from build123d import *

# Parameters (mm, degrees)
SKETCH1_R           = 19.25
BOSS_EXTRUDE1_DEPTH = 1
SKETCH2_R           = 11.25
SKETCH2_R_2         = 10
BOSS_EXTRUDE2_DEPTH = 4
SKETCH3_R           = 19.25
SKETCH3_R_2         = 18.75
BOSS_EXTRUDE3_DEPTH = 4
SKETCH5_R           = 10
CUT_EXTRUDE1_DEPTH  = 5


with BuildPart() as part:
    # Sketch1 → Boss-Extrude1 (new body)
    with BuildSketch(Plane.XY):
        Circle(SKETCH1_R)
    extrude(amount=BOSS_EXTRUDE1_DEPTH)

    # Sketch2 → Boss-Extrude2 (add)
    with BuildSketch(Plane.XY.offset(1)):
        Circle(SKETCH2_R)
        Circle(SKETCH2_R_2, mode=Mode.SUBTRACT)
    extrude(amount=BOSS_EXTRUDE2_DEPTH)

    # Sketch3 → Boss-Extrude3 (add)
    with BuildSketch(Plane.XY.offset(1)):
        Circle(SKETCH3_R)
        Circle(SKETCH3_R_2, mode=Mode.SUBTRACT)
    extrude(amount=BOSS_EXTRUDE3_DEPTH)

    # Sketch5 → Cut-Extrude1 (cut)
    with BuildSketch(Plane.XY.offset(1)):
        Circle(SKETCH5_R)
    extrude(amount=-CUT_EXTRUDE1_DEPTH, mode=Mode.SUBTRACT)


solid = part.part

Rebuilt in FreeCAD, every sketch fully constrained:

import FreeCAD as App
import Part
import Sketcher

doc = App.newDocument("Part")
body = doc.addObject("PartDesign::Body", "Body")

sketch1 = body.newObject("Sketcher::SketchObject", "Sketch")
sketch1.AttachmentSupport = (doc.getObject("XY_Plane"), [""])
sketch1.MapMode = "FlatFace"
sketch1.addGeometry(Part.Circle(App.Vector(0, 0, 0), App.Vector(0, 0, 1), 19), False)
sketch1.addConstraint([
    Sketcher.Constraint("Coincident", 0, 3, -1, 1),
    Sketcher.Constraint("Diameter", 0, 38.5),
])
pad1 = body.newObject("PartDesign::Pad", "Pad")
pad1.Profile = sketch1
pad1.Length = 1

sketch2 = body.newObject("Sketcher::SketchObject", "Sketch001")
sketch2.AttachmentSupport = (doc.getObject("XY_Plane"), [""])
sketch2.MapMode = "FlatFace"
sketch2.AttachmentOffset = App.Placement(App.Vector(0, 0, 1), App.Rotation())
sketch2.addGeometry([
    Part.Circle(App.Vector(0, 0, 0), App.Vector(0, 0, 1), 11),
    Part.Circle(App.Vector(0, 0, 0), App.Vector(0, 0, 1), 10),
], False)
sketch2.addConstraint([
    Sketcher.Constraint("Coincident", 0, 3, -1, 1),
    Sketcher.Constraint("Coincident", 1, 3, -1, 1),
    Sketcher.Constraint("Diameter", 1, 20.0),
    Sketcher.Constraint("Diameter", 0, 22.5),
])
pad2 = body.newObject("PartDesign::Pad", "Pad001")
pad2.Profile = sketch2
pad2.Length = 4

sketch3 = body.newObject("Sketcher::SketchObject", "Sketch002")
sketch3.AttachmentSupport = (doc.getObject("XY_Plane"), [""])
sketch3.MapMode = "FlatFace"
sketch3.AttachmentOffset = App.Placement(App.Vector(0, 0, 1), App.Rotation())
sketch3.addGeometry([
    Part.Circle(App.Vector(0, 0, 0), App.Vector(0, 0, 1), 19),
    Part.Circle(App.Vector(0, 0, 0), App.Vector(0, 0, 1), 19),
], False)
sketch3.addConstraint([
    Sketcher.Constraint("Coincident", 0, 3, -1, 1),
    Sketcher.Constraint("Coincident", 1, 3, -1, 1),
    Sketcher.Constraint("Diameter", 0, 38.5),
    Sketcher.Constraint("Diameter", 1, 37.5),
])
pad3 = body.newObject("PartDesign::Pad", "Pad002")
pad3.Profile = sketch3
pad3.Length = 4

sketch4 = body.newObject("Sketcher::SketchObject", "Sketch003")
sketch4.AttachmentSupport = (doc.getObject("XY_Plane"), [""])
sketch4.MapMode = "FlatFace"
sketch4.AttachmentOffset = App.Placement(App.Vector(0, 0, 1), App.Rotation())
sketch4.addGeometry(Part.Circle(App.Vector(0, 0, 0), App.Vector(0, 0, 1), 10), False)
sketch4.addConstraint([
    Sketcher.Constraint("Coincident", 0, 3, -1, 1),
    Sketcher.Constraint("Diameter", 0, 20.0),
])
pocket1 = body.newObject("PartDesign::Pocket", "Pocket")
pocket1.Profile = sketch4
pocket1.Length = 5

doc.recompute()
